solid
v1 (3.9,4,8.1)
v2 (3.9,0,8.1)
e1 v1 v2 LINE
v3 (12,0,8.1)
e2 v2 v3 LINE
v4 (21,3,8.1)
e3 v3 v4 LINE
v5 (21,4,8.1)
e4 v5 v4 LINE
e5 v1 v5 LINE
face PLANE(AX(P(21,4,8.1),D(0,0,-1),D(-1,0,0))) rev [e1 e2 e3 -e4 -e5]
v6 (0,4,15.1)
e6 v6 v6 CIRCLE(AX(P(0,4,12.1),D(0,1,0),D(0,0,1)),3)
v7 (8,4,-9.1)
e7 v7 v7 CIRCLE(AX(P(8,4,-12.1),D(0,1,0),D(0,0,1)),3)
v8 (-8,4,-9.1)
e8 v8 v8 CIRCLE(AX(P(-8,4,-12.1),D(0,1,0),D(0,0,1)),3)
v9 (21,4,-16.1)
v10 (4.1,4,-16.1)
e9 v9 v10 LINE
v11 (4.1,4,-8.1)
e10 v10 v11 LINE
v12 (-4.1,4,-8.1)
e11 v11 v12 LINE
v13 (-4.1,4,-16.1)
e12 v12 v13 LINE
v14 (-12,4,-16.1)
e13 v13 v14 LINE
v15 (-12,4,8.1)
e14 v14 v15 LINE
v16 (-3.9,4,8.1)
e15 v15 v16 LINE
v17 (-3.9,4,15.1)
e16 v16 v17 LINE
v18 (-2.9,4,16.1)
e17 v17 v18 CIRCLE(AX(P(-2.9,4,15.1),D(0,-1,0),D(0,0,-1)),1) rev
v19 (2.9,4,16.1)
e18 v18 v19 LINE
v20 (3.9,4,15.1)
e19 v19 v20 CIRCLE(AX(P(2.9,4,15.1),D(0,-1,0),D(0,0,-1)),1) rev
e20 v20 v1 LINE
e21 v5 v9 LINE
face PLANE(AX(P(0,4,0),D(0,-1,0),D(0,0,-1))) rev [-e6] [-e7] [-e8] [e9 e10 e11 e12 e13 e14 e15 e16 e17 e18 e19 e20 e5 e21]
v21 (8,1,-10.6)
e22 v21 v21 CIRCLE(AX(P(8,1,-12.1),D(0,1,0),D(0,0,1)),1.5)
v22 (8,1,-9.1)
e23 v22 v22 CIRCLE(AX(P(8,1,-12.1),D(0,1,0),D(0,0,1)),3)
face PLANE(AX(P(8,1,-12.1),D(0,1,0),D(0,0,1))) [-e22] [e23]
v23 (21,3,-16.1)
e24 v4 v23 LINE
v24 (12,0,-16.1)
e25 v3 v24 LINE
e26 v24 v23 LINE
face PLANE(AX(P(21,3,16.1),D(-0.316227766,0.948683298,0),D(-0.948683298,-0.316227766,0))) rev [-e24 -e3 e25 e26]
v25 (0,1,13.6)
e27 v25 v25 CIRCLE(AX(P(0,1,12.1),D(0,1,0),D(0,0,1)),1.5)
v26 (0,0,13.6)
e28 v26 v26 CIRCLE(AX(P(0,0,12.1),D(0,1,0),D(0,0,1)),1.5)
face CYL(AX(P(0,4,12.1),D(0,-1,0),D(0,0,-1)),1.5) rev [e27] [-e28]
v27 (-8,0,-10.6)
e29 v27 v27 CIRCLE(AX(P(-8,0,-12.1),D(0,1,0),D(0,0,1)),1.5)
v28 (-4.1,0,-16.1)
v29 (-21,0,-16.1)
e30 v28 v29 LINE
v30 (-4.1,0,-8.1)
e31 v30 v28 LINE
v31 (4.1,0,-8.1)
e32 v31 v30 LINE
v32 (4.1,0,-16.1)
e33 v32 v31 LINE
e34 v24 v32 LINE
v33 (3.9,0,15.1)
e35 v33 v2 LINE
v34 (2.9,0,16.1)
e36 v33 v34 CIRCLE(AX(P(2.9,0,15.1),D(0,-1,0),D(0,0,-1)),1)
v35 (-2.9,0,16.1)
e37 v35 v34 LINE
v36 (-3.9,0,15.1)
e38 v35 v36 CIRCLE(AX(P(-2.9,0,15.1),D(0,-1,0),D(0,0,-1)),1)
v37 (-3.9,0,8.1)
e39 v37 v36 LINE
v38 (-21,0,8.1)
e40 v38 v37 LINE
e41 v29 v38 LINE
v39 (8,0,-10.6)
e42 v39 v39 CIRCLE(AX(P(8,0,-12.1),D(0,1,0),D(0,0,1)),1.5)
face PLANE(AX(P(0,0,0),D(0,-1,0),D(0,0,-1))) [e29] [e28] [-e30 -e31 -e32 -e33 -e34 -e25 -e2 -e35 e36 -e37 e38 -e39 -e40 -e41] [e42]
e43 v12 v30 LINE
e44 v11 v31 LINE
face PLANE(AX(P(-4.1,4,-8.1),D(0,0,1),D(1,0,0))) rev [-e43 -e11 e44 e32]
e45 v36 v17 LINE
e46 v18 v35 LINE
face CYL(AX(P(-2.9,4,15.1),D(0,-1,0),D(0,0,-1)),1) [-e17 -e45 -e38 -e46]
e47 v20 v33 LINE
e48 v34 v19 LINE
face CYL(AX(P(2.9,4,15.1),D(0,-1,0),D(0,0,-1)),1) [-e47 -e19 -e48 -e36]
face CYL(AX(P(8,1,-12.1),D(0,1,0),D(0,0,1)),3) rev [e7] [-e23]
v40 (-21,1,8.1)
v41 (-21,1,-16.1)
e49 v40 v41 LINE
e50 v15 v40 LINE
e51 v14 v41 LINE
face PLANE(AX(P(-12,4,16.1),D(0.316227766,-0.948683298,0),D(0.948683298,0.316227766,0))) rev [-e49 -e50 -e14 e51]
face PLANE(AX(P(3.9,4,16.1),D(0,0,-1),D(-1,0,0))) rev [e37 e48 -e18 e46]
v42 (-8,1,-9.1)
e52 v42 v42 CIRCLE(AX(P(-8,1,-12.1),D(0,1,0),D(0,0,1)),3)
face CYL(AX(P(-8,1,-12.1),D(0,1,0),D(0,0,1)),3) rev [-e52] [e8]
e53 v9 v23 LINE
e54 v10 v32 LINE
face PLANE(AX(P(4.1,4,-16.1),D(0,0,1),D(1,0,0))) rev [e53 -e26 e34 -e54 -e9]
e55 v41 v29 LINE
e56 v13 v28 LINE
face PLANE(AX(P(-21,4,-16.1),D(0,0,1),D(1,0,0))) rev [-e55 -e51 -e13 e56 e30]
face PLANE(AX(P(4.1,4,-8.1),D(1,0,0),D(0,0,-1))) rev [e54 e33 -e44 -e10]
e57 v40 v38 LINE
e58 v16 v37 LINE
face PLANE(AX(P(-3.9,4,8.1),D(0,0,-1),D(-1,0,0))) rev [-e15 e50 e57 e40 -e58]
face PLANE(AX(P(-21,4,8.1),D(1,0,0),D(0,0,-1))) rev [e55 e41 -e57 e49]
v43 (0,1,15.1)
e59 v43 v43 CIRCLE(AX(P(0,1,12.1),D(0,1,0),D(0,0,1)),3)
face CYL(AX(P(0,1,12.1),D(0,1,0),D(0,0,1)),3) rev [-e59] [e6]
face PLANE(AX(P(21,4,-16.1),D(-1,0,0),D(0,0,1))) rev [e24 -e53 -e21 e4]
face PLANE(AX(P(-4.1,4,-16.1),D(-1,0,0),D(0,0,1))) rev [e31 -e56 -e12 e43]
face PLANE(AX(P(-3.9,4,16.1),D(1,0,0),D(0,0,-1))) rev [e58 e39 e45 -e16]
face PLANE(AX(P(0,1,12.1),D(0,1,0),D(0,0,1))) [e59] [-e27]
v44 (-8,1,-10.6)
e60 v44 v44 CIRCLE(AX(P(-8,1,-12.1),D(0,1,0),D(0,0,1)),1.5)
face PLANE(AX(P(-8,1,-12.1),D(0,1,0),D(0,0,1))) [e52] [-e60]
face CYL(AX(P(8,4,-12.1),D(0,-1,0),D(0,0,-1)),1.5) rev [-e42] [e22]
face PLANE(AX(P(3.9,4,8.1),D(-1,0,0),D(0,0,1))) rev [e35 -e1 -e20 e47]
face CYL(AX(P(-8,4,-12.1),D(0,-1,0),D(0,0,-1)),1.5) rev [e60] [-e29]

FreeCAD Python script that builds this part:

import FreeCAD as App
import Part
import Sketcher
Q = App.Units.Quantity


def edges_at(feature, points):
    """Names of the edges that pass closest to the given points."""
    edges = feature.Shape.Edges
    near = lambda p: min(range(len(edges)), key=lambda i: edges[i].distToShape(Part.Vertex(*p))[0])
    return sorted({f"Edge{near(p) + 1}" for p in points})


def add_polygon(sketch, points):
    """Adds a closed chain of lines whose ends are joined by coincident constraints."""
    first, n = sketch.GeometryCount, len(points)
    for a, b in zip(points, points[1:] + points[:1]):
        sketch.addGeometry(Part.LineSegment(App.Vector(*a, 0), App.Vector(*b, 0)), False)
    for i in range(n):
        sketch.addConstraint(Sketcher.Constraint("Coincident", first + i, 2, first + (i + 1) % n, 1))

doc = App.newDocument("Part")
body = doc.addObject("PartDesign::Body", "Body")

sketch1 = body.newObject("Sketcher::SketchObject", "Sketch")
sketch1.AttachmentSupport = (doc.getObject("XZ_Plane"), [""])
sketch1.MapMode = "FlatFace"
add_polygon(sketch1, [(-4.1, -16.1), (-21, -16.1), (-21, 8.1), (-3.9, 8.1), (-3.9, 16.1), (3.9, 16.1), (3.9, 8.1), (21, 8.1), (21, -16.1), (4.1, -16.1), (4.1, -8.1), (-4.1, -8.1)])
sketch1.addConstraint([
    Sketcher.Constraint("Horizontal", 0),
    Sketcher.Constraint("Vertical", 1),
    Sketcher.Constraint("Horizontal", 2),
    Sketcher.Constraint("Vertical", 3),
    Sketcher.Constraint("Horizontal", 4),
    Sketcher.Constraint("Vertical", 5),
    Sketcher.Constraint("Horizontal", 6),
    Sketcher.Constraint("Vertical", 7),
    Sketcher.Constraint("Horizontal", 8),
    Sketcher.Constraint("Vertical", 9),
    Sketcher.Constraint("Horizontal", 10),
    Sketcher.Constraint("Vertical", 11),
    Sketcher.Constraint("Symmetric", 2, 2, 5, 2, -2),
    Sketcher.Constraint("Symmetric", 0, 2, 7, 2, -2),
    Sketcher.Constraint("Equal", 0, 8),
    Sketcher.Constraint("Equal", 5, 9),
    Sketcher.Constraint("DistanceY", 3, 1, 3, 2, Q("8 mm")),
    Sketcher.Constraint("DistanceX", 0, 2, 0, 1, Q("16.9 mm")),
    Sketcher.Constraint("DistanceX", 2, 1, 2, 2, Q("17.1 mm")),
    Sketcher.Constraint("DistanceX", 4, 1, 4, 2, Q("7.8 mm")),
    Sketcher.Constraint("DistanceY", 1, 1, 1, 2, Q("24.2 mm")),
    Sketcher.Constraint("DistanceY", 0, 2, -1, 1, Q("16.1 mm")),
])
pad1 = body.newObject("PartDesign::Pad", "Pad")
pad1.Profile = sketch1
pad1.Length = 4
pad1.Reversed = True

sketch2 = body.newObject("Sketcher::SketchObject", "Sketch001")
sketch2.AttachmentSupport = (doc.getObject("XZ_Plane"), [""])
sketch2.MapMode = "FlatFace"
sketch2.addGeometry([
    Part.Circle(App.Vector(-8, -12.1, 0), App.Vector(0, 0, 1), 1.5),
    Part.Circle(App.Vector(8, -12.1, 0), App.Vector(0, 0, 1), 1.5),
    Part.Circle(App.Vector(0, 12.1, 0), App.Vector(0, 0, 1), 1.5),
], False)
sketch2.addConstraint([
    Sketcher.Constraint("Equal", 0, 1),
    Sketcher.Constraint("Equal", 1, 2),
    Sketcher.Constraint("Symmetric", 0, 3, 1, 3, -2),
    Sketcher.Constraint("PointOnObject", 2, 3, -2),
    Sketcher.Constraint("Diameter", 0, Q("3 mm")),
    Sketcher.Constraint("DistanceX", 0, 3, -1, 1, Q("8 mm")),
    Sketcher.Constraint("DistanceY", 0, 3, -1, 1, Q("12.1 mm")),
    Sketcher.Constraint("DistanceY", -1, 1, 2, 3, Q("12.1 mm")),
])
pocket1 = body.newObject("PartDesign::Pocket", "Pocket")
pocket1.Profile = sketch2
pocket1.Type = "ThroughAll"

sketch3 = body.newObject("Sketcher::SketchObject", "Sketch002")
sketch3.AttachmentSupport = (doc.getObject("XZ_Plane"), [""])
sketch3.MapMode = "FlatFace"
sketch3.AttachmentOffset = App.Placement(App.Vector(0, 0, -4), App.Rotation())
sketch3.addGeometry([
    Part.Circle(App.Vector(-8, -12.1, 0), App.Vector(0, 0, 1), 3),
    Part.Circle(App.Vector(8, -12.1, 0), App.Vector(0, 0, 1), 3),
    Part.Circle(App.Vector(0, 12.1, 0), App.Vector(0, 0, 1), 3),
], False)
sketch3.addConstraint([
    Sketcher.Constraint("Equal", 0, 1),
    Sketcher.Constraint("Equal", 1, 2),
    Sketcher.Constraint("Symmetric", 0, 3, 1, 3, -2),
    Sketcher.Constraint("PointOnObject", 2, 3, -2),
    Sketcher.Constraint("Diameter", 0, Q("6 mm")),
    Sketcher.Constraint("DistanceX", 0, 3, -1, 1, Q("8 mm")),
    Sketcher.Constraint("DistanceY", 0, 3, -1, 1, Q("12.1 mm")),
    Sketcher.Constraint("DistanceY", -1, 1, 2, 3, Q("12.1 mm")),
])
pocket2 = body.newObject("PartDesign::Pocket", "Pocket001")
pocket2.Profile = sketch3
pocket2.Length = 3
pocket2.Reversed = True

sketch4 = body.newObject("Sketcher::SketchObject", "Sketch003")
sketch4.AttachmentSupport = (doc.getObject("XY_Plane"), [""])
sketch4.MapMode = "FlatFace"
sketch4.AttachmentOffset = App.Placement(App.Vector(0, 0, -16.1), App.Rotation())
add_polygon(sketch4, [(12, 0), (21, 3), (21, 0)])
add_polygon(sketch4, [(-12, 4), (-21, 1), (-21, 4)])
sketch4.addConstraint([
    Sketcher.Constraint("Vertical", 1),
    Sketcher.Constraint("Horizontal", 2),
    Sketcher.Constraint("Vertical", 4),
    Sketcher.Constraint("Horizontal", 5),
    Sketcher.Constraint("PointOnObject", 1, 2, -1),
    Sketcher.Constraint("Parallel", 0, 3),
    Sketcher.Constraint("Equal", 2, 5),
    Sketcher.Constraint("DistanceX", 2, 2, 2, 1, Q("9 mm")),
    Sketcher.Constraint("DistanceY", 1, 2, 1, 1, Q("3 mm")),
    Sketcher.Constraint("DistanceX", -1, 1, 0, 2, Q("21 mm")),
    Sketcher.Constraint("DistanceX", 3, 2, -1, 1, Q("21 mm")),
    Sketcher.Constraint("DistanceY", -1, 1, 3, 2, Q("1 mm")),
])
pocket3 = body.newObject("PartDesign::Pocket", "Pocket002")
pocket3.Profile = sketch4
pocket3.Type = "ThroughAll"
pocket3.Reversed = True
doc.recompute()

fillet = body.newObject("PartDesign::Fillet", "Fillet")
fillet.Base = (pocket3, edges_at(pocket3, [(3.9, 2, 16.1), (-3.9, 2, 16.1)]))
fillet.Radius = 1

doc.recompute()
